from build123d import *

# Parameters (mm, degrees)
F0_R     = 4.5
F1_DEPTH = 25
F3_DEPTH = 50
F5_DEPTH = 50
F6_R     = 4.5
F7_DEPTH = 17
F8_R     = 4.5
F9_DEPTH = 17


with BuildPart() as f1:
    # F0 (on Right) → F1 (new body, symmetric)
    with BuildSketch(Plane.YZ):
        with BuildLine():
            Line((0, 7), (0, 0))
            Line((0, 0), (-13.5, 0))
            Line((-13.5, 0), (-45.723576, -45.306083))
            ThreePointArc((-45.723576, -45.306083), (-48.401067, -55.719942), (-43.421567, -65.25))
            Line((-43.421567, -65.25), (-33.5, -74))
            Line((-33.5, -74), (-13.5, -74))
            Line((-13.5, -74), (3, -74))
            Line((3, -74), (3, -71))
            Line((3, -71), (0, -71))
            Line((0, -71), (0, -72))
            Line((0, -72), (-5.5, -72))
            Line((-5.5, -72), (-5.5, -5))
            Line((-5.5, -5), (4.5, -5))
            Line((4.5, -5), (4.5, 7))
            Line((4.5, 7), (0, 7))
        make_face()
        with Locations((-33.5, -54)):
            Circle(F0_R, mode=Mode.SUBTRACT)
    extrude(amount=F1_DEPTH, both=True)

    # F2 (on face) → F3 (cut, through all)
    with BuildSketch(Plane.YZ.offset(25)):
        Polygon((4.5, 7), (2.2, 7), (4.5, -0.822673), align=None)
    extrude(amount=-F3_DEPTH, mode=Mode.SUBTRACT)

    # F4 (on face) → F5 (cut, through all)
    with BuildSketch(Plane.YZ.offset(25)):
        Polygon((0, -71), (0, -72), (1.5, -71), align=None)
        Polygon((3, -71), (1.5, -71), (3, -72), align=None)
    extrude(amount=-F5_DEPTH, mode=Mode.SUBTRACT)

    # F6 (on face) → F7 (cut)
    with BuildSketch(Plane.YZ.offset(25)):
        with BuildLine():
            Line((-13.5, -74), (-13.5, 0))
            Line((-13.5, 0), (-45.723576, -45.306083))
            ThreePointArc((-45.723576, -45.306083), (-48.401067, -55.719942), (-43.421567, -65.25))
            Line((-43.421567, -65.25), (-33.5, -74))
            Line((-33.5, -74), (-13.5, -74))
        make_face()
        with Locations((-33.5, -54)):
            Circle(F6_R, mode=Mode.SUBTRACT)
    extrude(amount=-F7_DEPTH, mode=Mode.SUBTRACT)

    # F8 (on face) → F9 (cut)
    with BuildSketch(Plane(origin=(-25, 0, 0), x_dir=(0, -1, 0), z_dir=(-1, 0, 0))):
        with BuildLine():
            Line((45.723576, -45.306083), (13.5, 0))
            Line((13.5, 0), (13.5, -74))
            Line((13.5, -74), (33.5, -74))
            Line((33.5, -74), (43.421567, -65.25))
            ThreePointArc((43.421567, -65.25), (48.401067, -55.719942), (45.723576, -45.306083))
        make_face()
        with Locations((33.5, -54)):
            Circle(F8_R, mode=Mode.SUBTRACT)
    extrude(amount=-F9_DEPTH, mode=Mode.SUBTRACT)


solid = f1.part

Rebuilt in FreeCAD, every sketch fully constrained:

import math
import FreeCAD as App
import Part
import Sketcher


def add_polygon(sketch, points):
    """Adds a closed chain of lines whose ends are joined by coincident constraints."""
    first, n = sketch.GeometryCount, len(points)
    for a, b in zip(points, points[1:] + points[:1]):
        sketch.addGeometry(Part.LineSegment(App.Vector(*a, 0), App.Vector(*b, 0)), False)
    for i in range(n):
        sketch.addConstraint(Sketcher.Constraint("Coincident", first + i, 2, first + (i + 1) % n, 1))

doc = App.newDocument("Part")
body = doc.addObject("PartDesign::Body", "Body")

# Sketch on YZ plane
sketch1 = body.newObject("Sketcher::SketchObject", "Sketch")
sketch1.AttachmentSupport = (doc.getObject("YZ_Plane"), [""])
sketch1.MapMode = "FlatFace"
sketch1.addGeometry([
    Part.LineSegment(App.Vector(0, 7, 0), App.Vector(0, 0, 0)),  # 0
    Part.LineSegment(App.Vector(0, 0, 0), App.Vector(-13.5, 0, 0)),  # 1
    Part.LineSegment(App.Vector(-13.5, 0, 0), App.Vector(-45.7, -45.3, 0)),  # 2
    Part.ArcOfCircle(Part.Circle(App.Vector(-33.5, -54, 0), App.Vector(0, 0, 1), 15), math.radians(145), math.radians(229)),  # 3
    Part.LineSegment(App.Vector(-43.4, -65.2, 0), App.Vector(-33.5, -74, 0)),  # 4
    Part.LineSegment(App.Vector(-33.5, -74, 0), App.Vector(3, -74, 0)),  # 5
    Part.LineSegment(App.Vector(3, -74, 0), App.Vector(3, -71, 0)),  # 6
    Part.LineSegment(App.Vector(3, -71, 0), App.Vector(0, -71, 0)),  # 7
    Part.LineSegment(App.Vector(0, -71, 0), App.Vector(0, -72, 0)),  # 8
    Part.LineSegment(App.Vector(0, -72, 0), App.Vector(-5.5, -72, 0)),  # 9
    Part.LineSegment(App.Vector(-5.5, -72, 0), App.Vector(-5.5, -5, 0)),  # 10
    Part.LineSegment(App.Vector(-5.5, -5, 0), App.Vector(4.5, -5, 0)),  # 11
    Part.LineSegment(App.Vector(4.5, -5, 0), App.Vector(4.5, 7, 0)),  # 12
    Part.LineSegment(App.Vector(4.5, 7, 0), App.Vector(0, 7, 0)),  # 13
    Part.Circle(App.Vector(-33.5, -54, 0), App.Vector(0, 0, 1), 4.5),  # 14
], False)
sketch1.addConstraint([
    Sketcher.Constraint("Coincident", 0, 2, 1, 1),
    Sketcher.Constraint("Coincident", 1, 2, 2, 1),
    Sketcher.Constraint("Tangent", 2, 2, 3, 1),
    Sketcher.Constraint("Tangent", 3, 2, 4, 1),
    Sketcher.Constraint("Coincident", 4, 2, 5, 1),
    Sketcher.Constraint("Coincident", 5, 2, 6, 1),
    Sketcher.Constraint("Coincident", 6, 2, 7, 1),
    Sketcher.Constraint("Coincident", 7, 2, 8, 1),
    Sketcher.Constraint("Coincident", 8, 2, 9, 1),
    Sketcher.Constraint("Coincident", 9, 2, 10, 1),
    Sketcher.Constraint("Coincident", 10, 2, 11, 1),
    Sketcher.Constraint("Coincident", 11, 2, 12, 1),
    Sketcher.Constraint("Coincident", 12, 2, 13, 1),
    Sketcher.Constraint("Coincident", 13, 2, 0, 1),
    Sketcher.Constraint("Vertical", 0),
    Sketcher.Constraint("Horizontal", 1),
    Sketcher.Constraint("Horizontal", 5),
    Sketcher.Constraint("Vertical", 6),
    Sketcher.Constraint("Horizontal", 7),
    Sketcher.Constraint("Vertical", 8),
    Sketcher.Constraint("Horizontal", 9),
    Sketcher.Constraint("Vertical", 10),
    Sketcher.Constraint("Horizontal", 11),
    Sketcher.Constraint("Vertical", 12),
    Sketcher.Constraint("Horizontal", 13),
    Sketcher.Constraint("Coincident", 0, 2, -1, 1),
    Sketcher.Constraint("Coincident", 14, 3, 3, 3),
    Sketcher.Constraint("PointOnObject", 7, 2, -2),
    Sketcher.Constraint("Vertical", 14, 3, 4, 2),
    Sketcher.Constraint("Equal", 7, 6),
    Sketcher.Constraint("Diameter", 14, 9.0),
    Sketcher.Constraint("Radius", 3, 15.0),
    Sketcher.Constraint("DistanceX", 7, 2, 7, 1, 3.0),
    Sketcher.Constraint("DistanceX", 11, 1, 11, 2, 10.0),
    Sketcher.Constraint("DistanceY", 0, 2, 0, 1, 7.0),
    Sketcher.Constraint("DistanceY", 8, 2, 8, 1, 1.0),
    Sketcher.Constraint("DistanceY", 10, 1, 10, 2, 67.0),
    Sketcher.Constraint("DistanceY", 12, 1, 12, 2, 12.0),
    Sketcher.Constraint("DistanceX", 1, 2, 1, 1, 13.5),
    Sketcher.Constraint("DistanceX", 5, 1, 5, 2, 36.5),
    Sketcher.Constraint("DistanceX", 9, 2, 9, 1, 5.5),
    Sketcher.Constraint("DistanceY", 3, 3, -1, 1, 54.0),
])
pad1 = body.newObject("PartDesign::Pad", "Pad")
pad1.Profile = sketch1
pad1.Length = 50
pad1.Midplane = True

# Sketch on YZ plane
sketch2 = body.newObject("Sketcher::SketchObject", "Sketch001")
sketch2.AttachmentSupport = (doc.getObject("YZ_Plane"), [""])
sketch2.MapMode = "FlatFace"
sketch2.AttachmentOffset = App.Placement(App.Vector(0, 0, 25), App.Rotation())
add_polygon(sketch2, [(4.5, 7), (2.2, 7), (4.5, -0.8)])  # lines 0-2
sketch2.addConstraint([
    Sketcher.Constraint("Horizontal", 0),
    Sketcher.Constraint("Vertical", 2),
    Sketcher.Constraint("DistanceX", 0, 2, 0, 1, 2.3),
    Sketcher.Constraint("DistanceY", -1, 1, 0, 2, 7.0),
    Sketcher.Constraint("DistanceX", -1, 1, 0, 2, 2.2),
    Sketcher.Constraint("DistanceY", 2, 1, 2, 2, 7.822673),
])
pocket1 = body.newObject("PartDesign::Pocket", "Pocket")
pocket1.Profile = sketch2
pocket1.Type = "ThroughAll"

# Sketch on YZ plane
sketch3 = body.newObject("Sketcher::SketchObject", "Sketch002")
sketch3.AttachmentSupport = (doc.getObject("YZ_Plane"), [""])
sketch3.MapMode = "FlatFace"
sketch3.AttachmentOffset = App.Placement(App.Vector(0, 0, 25), App.Rotation())
add_polygon(sketch3, [(0, -71), (0, -72), (1.5, -71)])  # lines 0-2
add_polygon(sketch3, [(3, -71), (1.5, -71), (3, -72)])  # lines 3-5
sketch3.addConstraint([
    Sketcher.Constraint("Vertical", 0),
    Sketcher.Constraint("Horizontal", 2),
    Sketcher.Constraint("Horizontal", 3),
    Sketcher.Constraint("Vertical", 5),
    Sketcher.Constraint("Coincident", 3, 2, 1, 2),
    Sketcher.Constraint("PointOnObject", 0, 2, -2),
    Sketcher.Constraint("Horizontal", 0, 2, 4, 2),
    Sketcher.Constraint("Equal", 2, 3),
    Sketcher.Constraint("DistanceY", 0, 2, 0, 1, 1.0),
    Sketcher.Constraint("DistanceX", 2, 2, 2, 1, 1.5),
    Sketcher.Constraint("DistanceY", 0, 2, -1, 1, 72.0),
])
pocket2 = body.newObject("PartDesign::Pocket", "Pocket001")
pocket2.Profile = sketch3
pocket2.Type = "ThroughAll"

# Sketch on YZ plane
sketch4 = body.newObject("Sketcher::SketchObject", "Sketch003")
sketch4.AttachmentSupport = (doc.getObject("YZ_Plane"), [""])
sketch4.MapMode = "FlatFace"
sketch4.AttachmentOffset = App.Placement(App.Vector(0, 0, 25), App.Rotation())
sketch4.addGeometry([
    Part.LineSegment(App.Vector(-13.5, -74, 0), App.Vector(-13.5, 0, 0)),  # 0
    Part.LineSegment(App.Vector(-13.5, 0, 0), App.Vector(-45.7, -45.3, 0)),  # 1
    Part.ArcOfCircle(Part.Circle(App.Vector(-33.5, -54, 0), App.Vector(0, 0, 1), 15), math.radians(145), math.radians(229)),  # 2
    Part.LineSegment(App.Vector(-43.4, -65.2, 0), App.Vector(-33.5, -74, 0)),  # 3
    Part.LineSegment(App.Vector(-33.5, -74, 0), App.Vector(-13.5, -74, 0)),  # 4
    Part.Circle(App.Vector(-33.5, -54, 0), App.Vector(0, 0, 1), 4.5),  # 5
], False)
sketch4.addConstraint([
    Sketcher.Constraint("Coincident", 0, 2, 1, 1),
    Sketcher.Constraint("Tangent", 1, 2, 2, 1),
    Sketcher.Constraint("Tangent", 2, 2, 3, 1),
    Sketcher.Constraint("Coincident", 3, 2, 4, 1),
    Sketcher.Constraint("Coincident", 4, 2, 0, 1),
    Sketcher.Constraint("Vertical", 0),
    Sketcher.Constraint("Horizontal", 4),
    Sketcher.Constraint("Coincident", 5, 3, 2, 3),
    Sketcher.Constraint("PointOnObject", 0, 2, -1),
    Sketcher.Constraint("Vertical", 5, 3, 3, 2),
    Sketcher.Constraint("Diameter", 5, 9.0),
    Sketcher.Constraint("Radius", 2, 15.0),
    Sketcher.Constraint("DistanceX", 4, 1, 4, 2, 20.0),
    Sketcher.Constraint("DistanceY", 0, 1, 0, 2, 74.0),
    Sketcher.Constraint("DistanceY", 2, 3, -1, 1, 54.0),
    Sketcher.Constraint("DistanceX", 2, 3, -1, 1, 33.5),
])
pocket3 = body.newObject("PartDesign::Pocket", "Pocket002")
pocket3.Profile = sketch4
pocket3.Length = 17

# Sketch on YZ plane
sketch5 = body.newObject("Sketcher::SketchObject", "Sketch004")
sketch5.AttachmentSupport = (doc.getObject("YZ_Plane"), [""])
sketch5.MapMode = "FlatFace"
sketch5.AttachmentOffset = App.Placement(App.Vector(0, 0, -25), App.Rotation())
sketch5.addGeometry([
    Part.LineSegment(App.Vector(-45.7, -45.3, 0), App.Vector(-13.5, 0, 0)),  # 0
    Part.LineSegment(App.Vector(-13.5, 0, 0), App.Vector(-13.5, -74, 0)),  # 1
    Part.LineSegment(App.Vector(-13.5, -74, 0), App.Vector(-33.5, -74, 0)),  # 2
    Part.LineSegment(App.Vector(-33.5, -74, 0), App.Vector(-43.4, -65.2, 0)),  # 3
    Part.ArcOfCircle(Part.Circle(App.Vector(-33.5, -54, 0), App.Vector(0, 0, 1), 15), math.radians(145), math.radians(229)),  # 4
    Part.Circle(App.Vector(-33.5, -54, 0), App.Vector(0, 0, 1), 4.5),  # 5
], False)
sketch5.addConstraint([
    Sketcher.Constraint("Coincident", 0, 2, 1, 1),
    Sketcher.Constraint("Coincident", 1, 2, 2, 1),
    Sketcher.Constraint("Coincident", 2, 2, 3, 1),
    Sketcher.Constraint("Tangent", 3, 2, 4, 2),
    Sketcher.Constraint("Tangent", 4, 1, 0, 1),
    Sketcher.Constraint("Vertical", 1),
    Sketcher.Constraint("Horizontal", 2),
    Sketcher.Constraint("Coincident", 5, 3, 4, 3),
    Sketcher.Constraint("PointOnObject", 0, 2, -1),
    Sketcher.Constraint("Vertical", 5, 3, 2, 2),
    Sketcher.Constraint("Diameter", 5, 9.0),
    Sketcher.Constraint("Radius", 4, 15.0),
    Sketcher.Constraint("DistanceX", 2, 2, 2, 1, 20.0),
    Sketcher.Constraint("DistanceY", 1, 2, 1, 1, 74.0),
    Sketcher.Constraint("DistanceY", 4, 3, -1, 1, 54.0),
    Sketcher.Constraint("DistanceX", 4, 3, -1, 1, 33.5),
])
pocket4 = body.newObject("PartDesign::Pocket", "Pocket003")
pocket4.Profile = sketch5
pocket4.Length = 17
pocket4.Reversed = True

doc.recompute()
